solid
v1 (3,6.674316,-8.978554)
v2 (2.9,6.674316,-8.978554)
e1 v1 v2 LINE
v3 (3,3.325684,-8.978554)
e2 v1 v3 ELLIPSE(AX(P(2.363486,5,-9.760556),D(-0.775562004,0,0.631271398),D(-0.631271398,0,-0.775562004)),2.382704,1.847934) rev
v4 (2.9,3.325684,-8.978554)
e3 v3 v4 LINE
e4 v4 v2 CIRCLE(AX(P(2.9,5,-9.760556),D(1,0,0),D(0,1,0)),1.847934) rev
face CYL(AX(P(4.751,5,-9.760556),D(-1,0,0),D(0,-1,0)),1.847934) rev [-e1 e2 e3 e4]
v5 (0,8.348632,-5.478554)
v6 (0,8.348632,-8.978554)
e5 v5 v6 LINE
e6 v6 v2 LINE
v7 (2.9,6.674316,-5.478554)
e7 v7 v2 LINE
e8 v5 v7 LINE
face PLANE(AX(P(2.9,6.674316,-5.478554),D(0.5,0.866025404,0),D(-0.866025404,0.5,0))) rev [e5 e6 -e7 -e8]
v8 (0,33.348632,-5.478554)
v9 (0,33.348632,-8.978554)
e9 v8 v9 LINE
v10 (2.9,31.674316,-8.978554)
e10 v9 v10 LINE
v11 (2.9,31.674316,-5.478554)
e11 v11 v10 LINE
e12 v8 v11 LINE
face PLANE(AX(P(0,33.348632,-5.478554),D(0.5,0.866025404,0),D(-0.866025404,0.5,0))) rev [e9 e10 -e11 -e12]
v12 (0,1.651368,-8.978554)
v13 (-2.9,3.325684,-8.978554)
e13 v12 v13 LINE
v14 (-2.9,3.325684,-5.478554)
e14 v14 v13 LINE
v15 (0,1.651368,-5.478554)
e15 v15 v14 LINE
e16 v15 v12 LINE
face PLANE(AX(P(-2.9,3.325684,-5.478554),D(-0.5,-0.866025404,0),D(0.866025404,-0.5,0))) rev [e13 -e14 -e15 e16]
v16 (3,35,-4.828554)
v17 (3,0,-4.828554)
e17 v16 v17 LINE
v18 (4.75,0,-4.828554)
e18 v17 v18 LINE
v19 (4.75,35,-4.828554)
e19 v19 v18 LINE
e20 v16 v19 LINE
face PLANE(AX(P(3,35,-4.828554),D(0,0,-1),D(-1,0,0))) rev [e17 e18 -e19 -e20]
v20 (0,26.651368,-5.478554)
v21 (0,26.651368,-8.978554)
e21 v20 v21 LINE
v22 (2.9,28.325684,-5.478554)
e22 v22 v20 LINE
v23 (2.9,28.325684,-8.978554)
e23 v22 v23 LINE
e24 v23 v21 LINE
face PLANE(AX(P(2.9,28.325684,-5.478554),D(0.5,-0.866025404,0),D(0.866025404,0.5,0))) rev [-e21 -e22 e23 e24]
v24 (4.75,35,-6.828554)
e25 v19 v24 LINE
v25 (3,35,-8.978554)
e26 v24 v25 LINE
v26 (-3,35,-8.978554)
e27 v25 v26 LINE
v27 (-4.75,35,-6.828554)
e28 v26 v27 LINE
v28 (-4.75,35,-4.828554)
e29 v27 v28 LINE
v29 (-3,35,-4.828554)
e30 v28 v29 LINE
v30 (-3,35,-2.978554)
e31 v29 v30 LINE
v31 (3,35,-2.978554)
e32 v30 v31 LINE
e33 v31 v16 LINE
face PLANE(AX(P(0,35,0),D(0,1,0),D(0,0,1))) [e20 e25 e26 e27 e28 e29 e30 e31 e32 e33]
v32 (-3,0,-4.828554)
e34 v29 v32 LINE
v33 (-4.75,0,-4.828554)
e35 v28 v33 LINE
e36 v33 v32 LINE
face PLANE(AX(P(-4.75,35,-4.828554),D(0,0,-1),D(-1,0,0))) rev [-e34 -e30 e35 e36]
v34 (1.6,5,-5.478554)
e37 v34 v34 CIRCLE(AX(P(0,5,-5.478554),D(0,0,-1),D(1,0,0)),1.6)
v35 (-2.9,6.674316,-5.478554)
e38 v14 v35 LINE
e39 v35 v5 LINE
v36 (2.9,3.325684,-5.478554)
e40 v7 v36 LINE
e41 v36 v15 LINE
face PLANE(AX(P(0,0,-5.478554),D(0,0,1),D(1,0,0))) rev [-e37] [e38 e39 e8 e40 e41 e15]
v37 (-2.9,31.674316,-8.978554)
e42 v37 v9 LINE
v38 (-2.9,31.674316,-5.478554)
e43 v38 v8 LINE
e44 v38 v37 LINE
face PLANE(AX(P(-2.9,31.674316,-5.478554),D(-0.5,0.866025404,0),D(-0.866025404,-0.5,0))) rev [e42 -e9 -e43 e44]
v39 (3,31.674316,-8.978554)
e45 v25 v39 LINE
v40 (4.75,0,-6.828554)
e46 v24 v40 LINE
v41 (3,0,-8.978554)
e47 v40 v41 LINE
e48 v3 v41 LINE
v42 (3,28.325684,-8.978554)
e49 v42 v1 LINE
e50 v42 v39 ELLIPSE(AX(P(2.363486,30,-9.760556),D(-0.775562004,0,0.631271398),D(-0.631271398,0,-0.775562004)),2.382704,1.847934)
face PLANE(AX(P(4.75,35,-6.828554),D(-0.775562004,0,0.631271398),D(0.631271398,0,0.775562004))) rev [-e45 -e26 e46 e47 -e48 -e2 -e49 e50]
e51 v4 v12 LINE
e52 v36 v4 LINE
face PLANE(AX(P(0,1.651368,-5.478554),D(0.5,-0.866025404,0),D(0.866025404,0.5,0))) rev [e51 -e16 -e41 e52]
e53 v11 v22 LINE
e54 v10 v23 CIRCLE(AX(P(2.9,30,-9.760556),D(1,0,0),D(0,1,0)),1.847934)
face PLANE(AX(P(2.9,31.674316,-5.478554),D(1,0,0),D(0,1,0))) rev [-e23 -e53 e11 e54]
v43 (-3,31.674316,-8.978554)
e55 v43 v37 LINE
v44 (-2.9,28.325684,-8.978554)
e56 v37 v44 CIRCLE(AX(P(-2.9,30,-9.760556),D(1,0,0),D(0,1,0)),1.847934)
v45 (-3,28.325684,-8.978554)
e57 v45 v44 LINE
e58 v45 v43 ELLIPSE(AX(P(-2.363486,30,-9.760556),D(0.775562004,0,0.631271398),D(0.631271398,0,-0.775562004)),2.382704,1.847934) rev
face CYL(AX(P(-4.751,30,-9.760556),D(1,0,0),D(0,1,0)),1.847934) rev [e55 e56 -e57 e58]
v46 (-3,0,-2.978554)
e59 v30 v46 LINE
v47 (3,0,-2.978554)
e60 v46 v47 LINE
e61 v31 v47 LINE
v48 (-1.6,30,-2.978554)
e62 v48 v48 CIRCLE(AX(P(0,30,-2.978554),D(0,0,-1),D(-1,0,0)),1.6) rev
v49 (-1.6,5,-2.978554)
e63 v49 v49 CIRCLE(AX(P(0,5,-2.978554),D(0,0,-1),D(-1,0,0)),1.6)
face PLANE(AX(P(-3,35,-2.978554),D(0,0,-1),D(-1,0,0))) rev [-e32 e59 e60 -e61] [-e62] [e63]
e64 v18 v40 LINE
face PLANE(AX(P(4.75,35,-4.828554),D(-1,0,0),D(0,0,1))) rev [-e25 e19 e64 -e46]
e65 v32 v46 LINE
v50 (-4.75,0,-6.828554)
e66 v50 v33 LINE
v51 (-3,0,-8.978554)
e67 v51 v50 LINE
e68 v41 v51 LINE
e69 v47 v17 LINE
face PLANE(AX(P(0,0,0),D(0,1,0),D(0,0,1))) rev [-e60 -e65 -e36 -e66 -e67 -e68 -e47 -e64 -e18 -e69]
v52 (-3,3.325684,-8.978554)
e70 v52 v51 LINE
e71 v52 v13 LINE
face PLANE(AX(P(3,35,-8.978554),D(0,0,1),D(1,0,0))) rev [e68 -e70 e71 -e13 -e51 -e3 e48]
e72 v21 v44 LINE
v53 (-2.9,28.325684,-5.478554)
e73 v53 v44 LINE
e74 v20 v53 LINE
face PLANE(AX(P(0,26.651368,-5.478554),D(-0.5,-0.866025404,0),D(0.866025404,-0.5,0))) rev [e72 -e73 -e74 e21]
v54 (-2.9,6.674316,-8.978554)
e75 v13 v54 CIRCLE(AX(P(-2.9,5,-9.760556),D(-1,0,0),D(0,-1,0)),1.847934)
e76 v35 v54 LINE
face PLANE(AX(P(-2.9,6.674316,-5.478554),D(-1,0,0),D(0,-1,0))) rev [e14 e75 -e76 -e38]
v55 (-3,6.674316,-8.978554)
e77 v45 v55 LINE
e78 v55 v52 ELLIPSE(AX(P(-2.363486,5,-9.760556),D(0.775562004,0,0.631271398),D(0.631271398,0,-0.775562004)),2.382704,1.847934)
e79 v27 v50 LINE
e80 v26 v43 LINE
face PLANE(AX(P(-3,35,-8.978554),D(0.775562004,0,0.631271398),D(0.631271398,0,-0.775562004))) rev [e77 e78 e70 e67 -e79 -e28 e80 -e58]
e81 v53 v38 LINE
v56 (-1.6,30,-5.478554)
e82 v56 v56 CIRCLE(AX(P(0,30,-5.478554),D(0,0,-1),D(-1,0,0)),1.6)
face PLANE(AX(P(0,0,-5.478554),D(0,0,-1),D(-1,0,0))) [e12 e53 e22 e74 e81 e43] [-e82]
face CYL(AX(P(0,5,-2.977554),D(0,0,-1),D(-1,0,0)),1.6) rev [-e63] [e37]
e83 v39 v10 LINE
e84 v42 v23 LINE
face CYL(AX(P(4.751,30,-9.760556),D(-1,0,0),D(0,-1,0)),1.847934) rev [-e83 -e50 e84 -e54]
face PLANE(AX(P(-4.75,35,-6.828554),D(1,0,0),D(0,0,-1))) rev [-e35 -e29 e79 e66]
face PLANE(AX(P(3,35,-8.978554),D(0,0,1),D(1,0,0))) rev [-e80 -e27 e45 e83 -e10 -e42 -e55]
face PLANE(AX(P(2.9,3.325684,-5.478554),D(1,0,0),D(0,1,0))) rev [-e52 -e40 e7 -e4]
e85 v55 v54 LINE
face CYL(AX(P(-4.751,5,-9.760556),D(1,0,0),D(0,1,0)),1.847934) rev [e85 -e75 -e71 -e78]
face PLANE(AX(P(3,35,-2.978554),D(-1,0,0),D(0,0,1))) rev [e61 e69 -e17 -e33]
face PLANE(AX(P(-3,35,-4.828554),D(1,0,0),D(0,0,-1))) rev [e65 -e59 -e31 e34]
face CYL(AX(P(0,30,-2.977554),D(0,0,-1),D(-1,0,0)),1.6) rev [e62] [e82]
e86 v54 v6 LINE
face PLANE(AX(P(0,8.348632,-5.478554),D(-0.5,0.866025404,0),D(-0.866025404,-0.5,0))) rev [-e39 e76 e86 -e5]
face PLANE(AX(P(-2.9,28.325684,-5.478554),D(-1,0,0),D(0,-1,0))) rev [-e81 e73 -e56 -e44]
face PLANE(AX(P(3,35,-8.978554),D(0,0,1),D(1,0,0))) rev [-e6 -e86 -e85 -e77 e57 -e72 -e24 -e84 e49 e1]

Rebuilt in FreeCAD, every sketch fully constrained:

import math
import FreeCAD as App
import Part
import Sketcher
Q = App.Units.Quantity

doc = App.newDocument("Part")
body = doc.addObject("PartDesign::Body", "Body")

# Sketch on XZ plane
sketch1 = doc.addObject("Sketcher::SketchObject", "Sketch")
body.addObject(sketch1)
sketch1.AttachmentSupport = (doc.XZ_Plane, [""])
sketch1.MapMode = "FlatFace"
sketch1.addGeometry(Part.LineSegment(App.Vector(-3, -3, 0), App.Vector(3, -3, 0)), False)
sketch1.addGeometry(Part.LineSegment(App.Vector(3, -3, 0), App.Vector(3, -4.8, 0)), False)
sketch1.addGeometry(Part.LineSegment(App.Vector(3, -4.8, 0), App.Vector(4.8, -4.8, 0)), False)
sketch1.addGeometry(Part.LineSegment(App.Vector(4.8, -4.8, 0), App.Vector(4.8, -6.8, 0)), False)
sketch1.addGeometry(Part.LineSegment(App.Vector(4.8, -6.8, 0), App.Vector(3, -9, 0)), False)
sketch1.addGeometry(Part.LineSegment(App.Vector(3, -9, 0), App.Vector(-3, -9, 0)), False)
sketch1.addGeometry(Part.LineSegment(App.Vector(-3, -9, 0), App.Vector(-4.8, -6.8, 0)), False)
sketch1.addGeometry(Part.LineSegment(App.Vector(-4.8, -6.8, 0), App.Vector(-4.8, -4.8, 0)), False)
sketch1.addGeometry(Part.LineSegment(App.Vector(-4.8, -4.8, 0), App.Vector(-3, -4.8, 0)), False)
sketch1.addGeometry(Part.LineSegment(App.Vector(-3, -4.8, 0), App.Vector(-3, -3, 0)), False)
sketch1.addConstraint(Sketcher.Constraint("Coincident", 0, 2, 1, 1))
sketch1.addConstraint(Sketcher.Constraint("Coincident", 1, 2, 2, 1))
sketch1.addConstraint(Sketcher.Constraint("Coincident", 2, 2, 3, 1))
sketch1.addConstraint(Sketcher.Constraint("Coincident", 3, 2, 4, 1))
sketch1.addConstraint(Sketcher.Constraint("Coincident", 4, 2, 5, 1))
sketch1.addConstraint(Sketcher.Constraint("Coincident", 5, 2, 6, 1))
sketch1.addConstraint(Sketcher.Constraint("Coincident", 6, 2, 7, 1))
sketch1.addConstraint(Sketcher.Constraint("Coincident", 7, 2, 8, 1))
sketch1.addConstraint(Sketcher.Constraint("Coincident", 8, 2, 9, 1))
sketch1.addConstraint(Sketcher.Constraint("Coincident", 9, 2, 0, 1))
sketch1.addConstraint(Sketcher.Constraint("Horizontal", 0))
sketch1.addConstraint(Sketcher.Constraint("Vertical", 1))
sketch1.addConstraint(Sketcher.Constraint("Horizontal", 2))
sketch1.addConstraint(Sketcher.Constraint("Vertical", 3))
sketch1.addConstraint(Sketcher.Constraint("Horizontal", 5))
sketch1.addConstraint(Sketcher.Constraint("Vertical", 7))
sketch1.addConstraint(Sketcher.Constraint("Horizontal", 8))
sketch1.addConstraint(Sketcher.Constraint("Vertical", 9))
sketch1.addConstraint(Sketcher.Constraint("Symmetric", 3, 2, 6, 2, -2))
sketch1.addConstraint(Sketcher.Constraint("Symmetric", 1, 2, 8, 2, -2))
sketch1.addConstraint(Sketcher.Constraint("Vertical", 1, 2, 4, 2))
sketch1.addConstraint(Sketcher.Constraint("Vertical", 5, 2, 8, 2))
sketch1.addConstraint(Sketcher.Constraint("DistanceX", 0, 1, 0, 2, Q("6 mm")))
sketch1.addConstraint(Sketcher.Constraint("DistanceY", 3, 2, 3, 1, Q("2 mm")))
sketch1.addConstraint(Sketcher.Constraint("DistanceY", 4, 2, 0, 2, Q("6 mm")))
sketch1.addConstraint(Sketcher.Constraint("DistanceX", 2, 1, 2, 2, Q("1.75 mm")))
sketch1.addConstraint(Sketcher.Constraint("DistanceY", 1, 2, 1, 1, Q("1.85 mm")))
sketch1.addConstraint(Sketcher.Constraint("DistanceY", 0, 2, -1, 1, Q("2.978554 mm")))
pad1 = doc.addObject("PartDesign::Pad", "Pad")
body.addObject(pad1)
pad1.Profile = sketch1
pad1.Length = 35
pad1.Reversed = True

# Sketch on XY plane
sketch2 = doc.addObject("Sketcher::SketchObject", "Sketch001")
body.addObject(sketch2)
sketch2.AttachmentSupport = (doc.XY_Plane, [""])
sketch2.MapMode = "FlatFace"
sketch2.AttachmentOffset = App.Placement(App.Vector(0, 0, -8.978554), App.Rotation())
sketch2.addGeometry(Part.Circle(App.Vector(0, 30, 0), App.Vector(0, 0, 1), 1.6), False)
sketch2.addConstraint(Sketcher.Constraint("PointOnObject", 0, 3, -2))
sketch2.addConstraint(Sketcher.Constraint("Diameter", 0, Q("3.2 mm")))
sketch2.addConstraint(Sketcher.Constraint("DistanceY", -1, 1, 0, 3, Q("30 mm")))
pocket1 = doc.addObject("PartDesign::Pocket", "Pocket")
body.addObject(pocket1)
pocket1.Profile = sketch2
pocket1.Type = "UpToFirst"
pocket1.Reversed = True

# Sketch on XY plane
sketch3 = doc.addObject("Sketcher::SketchObject", "Sketch002")
body.addObject(sketch3)
sketch3.AttachmentSupport = (doc.XY_Plane, [""])
sketch3.MapMode = "FlatFace"
sketch3.AttachmentOffset = App.Placement(App.Vector(0, 0, -8.978554), App.Rotation())
sketch3.addGeometry(Part.Circle(App.Vector(0, 5, 0), App.Vector(0, 0, 1), 1.6), False)
sketch3.addConstraint(Sketcher.Constraint("PointOnObject", 0, 3, -2))
sketch3.addConstraint(Sketcher.Constraint("Diameter", 0, Q("3.2 mm")))
sketch3.addConstraint(Sketcher.Constraint("DistanceY", -1, 1, 0, 3, Q("5 mm")))
pocket2 = doc.addObject("PartDesign::Pocket", "Pocket001")
body.addObject(pocket2)
pocket2.Profile = sketch3
pocket2.Type = "UpToFirst"
pocket2.Reversed = True

# Sketch on XY plane
sketch4 = doc.addObject("Sketcher::SketchObject", "Sketch003")
body.addObject(sketch4)
sketch4.AttachmentSupport = (doc.XY_Plane, [""])
sketch4.MapMode = "FlatFace"
sketch4.AttachmentOffset = App.Placement(App.Vector(0, 0, -8.978554), App.Rotation())
sketch4.addGeometry(Part.LineSegment(App.Vector(0, 33.3, 0), App.Vector(2.9, 31.7, 0)), False)
sketch4.addGeometry(Part.LineSegment(App.Vector(2.9, 31.7, 0), App.Vector(2.9, 28.3, 0)), False)
sketch4.addGeometry(Part.LineSegment(App.Vector(2.9, 28.3, 0), App.Vector(0, 26.7, 0)), False)
sketch4.addGeometry(Part.LineSegment(App.Vector(0, 26.7, 0), App.Vector(-2.9, 28.3, 0)), False)
sketch4.addGeometry(Part.LineSegment(App.Vector(-2.9, 28.3, 0), App.Vector(-2.9, 31.7, 0)), False)
sketch4.addGeometry(Part.LineSegment(App.Vector(-2.9, 31.7, 0), App.Vector(0, 33.3, 0)), False)
sketch4.addGeometry(Part.Circle(App.Vector(0, 30, 0), App.Vector(0, 0, 1), 1.6), False)
sketch4.addGeometry(Part.LineSegment(App.Vector(0, 1.7, 0), App.Vector(-2.9, 3.3, 0)), False)
sketch4.addGeometry(Part.LineSegment(App.Vector(-2.9, 3.3, 0), App.Vector(-2.9, 6.7, 0)), False)
sketch4.addGeometry(Part.LineSegment(App.Vector(-2.9, 6.7, 0), App.Vector(0, 8.3, 0)), False)
sketch4.addGeometry(Part.LineSegment(App.Vector(0, 8.3, 0), App.Vector(2.9, 6.7, 0)), False)
sketch4.addGeometry(Part.LineSegment(App.Vector(2.9, 6.7, 0), App.Vector(2.9, 3.3, 0)), False)
sketch4.addGeometry(Part.LineSegment(App.Vector(2.9, 3.3, 0), App.Vector(0, 1.7, 0)), False)
sketch4.addGeometry(Part.Circle(App.Vector(0, 5, 0), App.Vector(0, 0, 1), 1.6), False)
sketch4.addConstraint(Sketcher.Constraint("Coincident", 0, 2, 1, 1))
sketch4.addConstraint(Sketcher.Constraint("Coincident", 1, 2, 2, 1))
sketch4.addConstraint(Sketcher.Constraint("Coincident", 2, 2, 3, 1))
sketch4.addConstraint(Sketcher.Constraint("Coincident", 3, 2, 4, 1))
sketch4.addConstraint(Sketcher.Constraint("Coincident", 4, 2, 5, 1))
sketch4.addConstraint(Sketcher.Constraint("Coincident", 5, 2, 0, 1))
sketch4.addConstraint(Sketcher.Constraint("Coincident", 7, 2, 8, 1))
sketch4.addConstraint(Sketcher.Constraint("Coincident", 8, 2, 9, 1))
sketch4.addConstraint(Sketcher.Constraint("Coincident", 9, 2, 10, 1))
sketch4.addConstraint(Sketcher.Constraint("Coincident", 10, 2, 11, 1))
sketch4.addConstraint(Sketcher.Constraint("Coincident", 11, 2, 12, 1))
sketch4.addConstraint(Sketcher.Constraint("Coincident", 12, 2, 7, 1))
sketch4.addConstraint(Sketcher.Constraint("Vertical", 1))
sketch4.addConstraint(Sketcher.Constraint("Vertical", 4))
sketch4.addConstraint(Sketcher.Constraint("Vertical", 8))
sketch4.addConstraint(Sketcher.Constraint("Vertical", 11))
sketch4.addConstraint(Sketcher.Constraint("Equal", 6, 13))
sketch4.addConstraint(Sketcher.Constraint("Symmetric", 1, 2, 3, 2, -2))
sketch4.addConstraint(Sketcher.Constraint("Symmetric", 8, 2, 10, 2, -2))
sketch4.addConstraint(Sketcher.Constraint("PointOnObject", 6, 3, -2))
sketch4.addConstraint(Sketcher.Constraint("PointOnObject", 13, 3, -2))
sketch4.addConstraint(Sketcher.Constraint("PointOnObject", 2, 2, -2))
sketch4.addConstraint(Sketcher.Constraint("PointOnObject", 5, 2, -2))
sketch4.addConstraint(Sketcher.Constraint("PointOnObject", 9, 2, -2))
sketch4.addConstraint(Sketcher.Constraint("PointOnObject", 12, 2, -2))
sketch4.addConstraint(Sketcher.Constraint("Parallel", 0, 3))
sketch4.addConstraint(Sketcher.Constraint("Parallel", 2, 5))
sketch4.addConstraint(Sketcher.Constraint("Parallel", 3, 7))
sketch4.addConstraint(Sketcher.Constraint("Parallel", 5, 9))
sketch4.addConstraint(Sketcher.Constraint("Parallel", 9, 12))
sketch4.addConstraint(Sketcher.Constraint("Vertical", 4, 2, 7, 2))
sketch4.addConstraint(Sketcher.Constraint("Equal", 4, 8))
sketch4.addConstraint(Sketcher.Constraint("Diameter", 6, Q("3.2 mm")))
sketch4.addConstraint(Sketcher.Constraint("Angle", 0, Q("-30 deg")))
sketch4.addConstraint(Sketcher.Constraint("DistanceY", -1, 1, 6, 3, Q("30 mm")))
sketch4.addConstraint(Sketcher.Constraint("DistanceY", -1, 1, 13, 3, Q("5 mm")))
sketch4.addConstraint(Sketcher.Constraint("DistanceY", 7, 2, 3, 2, Q("25 mm")))
sketch4.addConstraint(Sketcher.Constraint("DistanceX", -1, 1, 0, 2, Q("2.9 mm")))
sketch4.addConstraint(Sketcher.Constraint("DistanceY", 1, 2, 1, 1, Q("3.348632 mm")))
sketch4.addConstraint(Sketcher.Constraint("DistanceY", -1, 1, 2, 2, Q("26.651368 mm")))
pocket3 = doc.addObject("PartDesign::Pocket", "Pocket002")
body.addObject(pocket3)
pocket3.Profile = sketch4
pocket3.Length = 3.5
pocket3.Reversed = True

# Sketch on YZ plane
sketch5 = doc.addObject("Sketcher::SketchObject", "Sketch004")
body.addObject(sketch5)
sketch5.AttachmentSupport = (doc.YZ_Plane, [""])
sketch5.MapMode = "FlatFace"
sketch5.AttachmentOffset = App.Placement(App.Vector(0, 0, -3.867619), App.Rotation())
sketch5.addGeometry(Part.LineSegment(App.Vector(28.3, -9, 0), App.Vector(31.7, -9, 0)), False)
sketch5.addGeometry(Part.ArcOfCircle(Part.Circle(App.Vector(30, -9.8, 0), App.Vector(0, 0, 1), 1.8), math.radians(25), math.radians(155)), False)
sketch5.addConstraint(Sketcher.Constraint("Coincident", 0, 1, 1, 2))
sketch5.addConstraint(Sketcher.Constraint("Coincident", 1, 1, 0, 2))
sketch5.addConstraint(Sketcher.Constraint("Horizontal", 0))
sketch5.addConstraint(Sketcher.Constraint("DistanceX", -1, 1, 1, 3, Q("30 mm")))
sketch5.addConstraint(Sketcher.Constraint("Radius", 1, Q("1.847934 mm")))
sketch5.addConstraint(Sketcher.Constraint("DistanceX", 0, 1, 0, 2, Q("3.348632 mm")))
sketch5.addConstraint(Sketcher.Constraint("DistanceY", 1, 3, -1, 1, Q("9.760556 mm")))
pocket4 = doc.addObject("PartDesign::Pocket", "Pocket003")
body.addObject(pocket4)
pocket4.Profile = sketch5
pocket4.Length = 7.735238
pocket4.Reversed = True
doc.recompute()

datumplane = doc.addObject("PartDesign::Plane", "DatumPlane")
body.addObject(datumplane)
datumplane.AttachmentSupport = (doc.XZ_Plane, [""])
datumplane.MapMode = "FlatFace"
datumplane.AttachmentOffset = App.Placement(App.Vector(0, 0, -17.5), App.Rotation())
mirrored = doc.addObject("PartDesign::Mirrored", "Mirrored")
body.addObject(mirrored)
mirrored.Originals = [pocket4]
mirrored.MirrorPlane = (datumplane, [""])
body.Tip = mirrored

doc.recompute()
